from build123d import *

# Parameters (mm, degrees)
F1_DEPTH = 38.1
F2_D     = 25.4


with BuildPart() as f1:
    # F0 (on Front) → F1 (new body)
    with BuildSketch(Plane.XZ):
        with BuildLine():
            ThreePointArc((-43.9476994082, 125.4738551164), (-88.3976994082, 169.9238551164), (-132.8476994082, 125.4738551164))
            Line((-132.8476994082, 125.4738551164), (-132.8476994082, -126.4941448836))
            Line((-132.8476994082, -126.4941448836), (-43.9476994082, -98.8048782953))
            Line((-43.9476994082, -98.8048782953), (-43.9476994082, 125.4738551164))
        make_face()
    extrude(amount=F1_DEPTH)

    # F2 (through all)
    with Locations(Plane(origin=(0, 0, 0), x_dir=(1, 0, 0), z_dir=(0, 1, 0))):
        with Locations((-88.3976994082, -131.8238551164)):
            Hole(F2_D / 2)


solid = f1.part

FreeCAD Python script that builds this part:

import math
import FreeCAD as App
import Part
import Sketcher
from FreeCAD import Vector
Q = App.Units.Quantity

doc = App.newDocument("Part")
body = doc.addObject("PartDesign::Body", "Body")

# Sketch on XZ plane
sketch1 = body.newObject("Sketcher::SketchObject", "Sketch")
sketch1.AttachmentSupport = (doc.getObject("XZ_Plane"), [""])
sketch1.MapMode = "FlatFace"
sketch1.addGeometry([
    Part.ArcOfCircle(Part.Circle(Vector(-88.397699, 125.473855, 0), Vector(0, 0, 1), 44.45), math.radians(0), math.radians(180)),
    Part.LineSegment(Vector(-132.847699, 125.473855, 0), Vector(-132.847699, -126.494145, 0)),
    Part.LineSegment(Vector(-132.847699, -126.494145, 0), Vector(-43.947699, -98.804878, 0)),
    Part.LineSegment(Vector(-43.947699, -98.804878, 0), Vector(-43.947699, 125.473855, 0)),
], False)
sketch1.addConstraint([
    Sketcher.Constraint("Tangent", 0, 2, 1, 1),
    Sketcher.Constraint("Coincident", 1, 2, 2, 1),
    Sketcher.Constraint("Coincident", 2, 2, 3, 1),
    Sketcher.Constraint("Tangent", 3, 2, 0, 1),
    Sketcher.Constraint("Vertical", 1),
    Sketcher.Constraint("Vertical", 3),
    Sketcher.Constraint("Radius", 0, Q("1.75 in")),
    Sketcher.Constraint("DistanceY", 1, 2, 1, 1, Q("9.92 in")),
    Sketcher.Constraint("Angle", 2, Q("17.3 deg")),
    Sketcher.Constraint("DistanceX", 0, 3, -1, 1, 88.397699),
    Sketcher.Constraint("DistanceY", 2, 2, -1, 1, 98.804878),
])
pad1 = body.newObject("PartDesign::Pad", "Pad")
pad1.Profile = sketch1
pad1.Length = Q("1.5 in")

# Sketch on XZ plane
sketch2 = body.newObject("Sketcher::SketchObject", "Sketch001")
sketch2.AttachmentSupport = (doc.getObject("XZ_Plane"), [""])
sketch2.MapMode = "FlatFace"
sketch2.addGeometry(Part.Circle(Vector(-88.397699, 131.823855, 0), Vector(0, 0, 1), 12.7), False)
sketch2.addConstraint([
    Sketcher.Constraint("Diameter", 0, Q("1 in")),
    Sketcher.Constraint("DistanceX", 0, 3, -1, 1, 88.397699),
    Sketcher.Constraint("DistanceY", -1, 1, 0, 3, 131.823855),
])
doc.recompute()
hole = body.newObject("PartDesign::Hole", "Hole")
hole.Profile = sketch2
hole.ThreadType = "None"
hole.Diameter = Q("1 in")
hole.DepthType = "ThroughAll"
hole.Reversed = True

doc.recompute()
